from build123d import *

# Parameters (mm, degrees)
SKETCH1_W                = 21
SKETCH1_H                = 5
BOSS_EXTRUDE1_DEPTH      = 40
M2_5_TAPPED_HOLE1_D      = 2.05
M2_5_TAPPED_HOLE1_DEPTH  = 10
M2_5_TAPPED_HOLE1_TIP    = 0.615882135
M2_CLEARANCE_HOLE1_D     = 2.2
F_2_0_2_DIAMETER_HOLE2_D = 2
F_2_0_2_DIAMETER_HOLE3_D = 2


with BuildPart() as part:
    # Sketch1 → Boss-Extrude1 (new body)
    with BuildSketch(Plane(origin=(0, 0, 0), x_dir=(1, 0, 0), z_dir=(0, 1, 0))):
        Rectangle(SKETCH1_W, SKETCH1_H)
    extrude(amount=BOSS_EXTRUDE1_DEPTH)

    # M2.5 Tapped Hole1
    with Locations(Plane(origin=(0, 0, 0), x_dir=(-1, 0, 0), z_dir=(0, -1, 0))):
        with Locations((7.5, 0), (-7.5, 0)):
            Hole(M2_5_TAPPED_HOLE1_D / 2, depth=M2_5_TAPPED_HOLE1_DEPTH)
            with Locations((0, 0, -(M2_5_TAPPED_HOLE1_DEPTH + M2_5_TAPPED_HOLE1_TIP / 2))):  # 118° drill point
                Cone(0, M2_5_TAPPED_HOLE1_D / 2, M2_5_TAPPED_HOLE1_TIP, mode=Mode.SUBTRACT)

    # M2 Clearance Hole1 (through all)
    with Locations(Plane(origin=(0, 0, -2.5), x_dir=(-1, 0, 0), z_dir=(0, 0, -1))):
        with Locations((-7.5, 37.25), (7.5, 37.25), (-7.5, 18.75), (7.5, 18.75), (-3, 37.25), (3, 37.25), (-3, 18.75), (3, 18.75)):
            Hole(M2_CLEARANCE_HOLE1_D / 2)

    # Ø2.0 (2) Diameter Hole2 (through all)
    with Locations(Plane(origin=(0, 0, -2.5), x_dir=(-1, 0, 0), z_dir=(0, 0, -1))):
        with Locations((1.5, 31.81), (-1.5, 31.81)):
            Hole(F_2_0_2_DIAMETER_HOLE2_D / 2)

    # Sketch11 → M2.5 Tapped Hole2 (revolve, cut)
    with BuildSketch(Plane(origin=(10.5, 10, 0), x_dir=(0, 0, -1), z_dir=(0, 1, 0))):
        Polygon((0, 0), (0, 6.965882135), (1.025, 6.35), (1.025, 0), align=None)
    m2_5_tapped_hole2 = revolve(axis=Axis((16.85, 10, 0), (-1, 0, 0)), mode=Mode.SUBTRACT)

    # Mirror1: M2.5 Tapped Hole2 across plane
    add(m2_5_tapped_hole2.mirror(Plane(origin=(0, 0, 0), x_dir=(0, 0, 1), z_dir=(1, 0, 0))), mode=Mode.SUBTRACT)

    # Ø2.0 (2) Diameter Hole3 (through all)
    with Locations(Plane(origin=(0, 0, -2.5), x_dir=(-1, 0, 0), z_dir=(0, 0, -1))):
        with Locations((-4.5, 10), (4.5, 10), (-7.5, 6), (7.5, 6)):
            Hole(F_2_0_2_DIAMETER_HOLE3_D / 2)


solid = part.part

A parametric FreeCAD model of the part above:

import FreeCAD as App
import Part
import Sketcher
Q = App.Units.Quantity

doc = App.newDocument("Part")
body = doc.addObject("PartDesign::Body", "Body")

sketch1 = body.newObject("Sketcher::SketchObject", "Sketch")
sketch1.AttachmentSupport = (doc.getObject("XZ_Plane"), [""])
sketch1.MapMode = "FlatFace"
sketch1.addGeometry([
    Part.LineSegment(App.Vector(-10, -2, 0), App.Vector(-10, 2, 0)),
    Part.LineSegment(App.Vector(-10, 2, 0), App.Vector(10, 2, 0)),
    Part.LineSegment(App.Vector(10, 2, 0), App.Vector(10, -2, 0)),
    Part.LineSegment(App.Vector(10, -2, 0), App.Vector(-10, -2, 0)),
], False)
sketch1.addConstraint([
    Sketcher.Constraint("Coincident", 0, 2, 1, 1),
    Sketcher.Constraint("Coincident", 1, 2, 2, 1),
    Sketcher.Constraint("Coincident", 2, 2, 3, 1),
    Sketcher.Constraint("Coincident", 3, 2, 0, 1),
    Sketcher.Constraint("Vertical", 0),
    Sketcher.Constraint("Horizontal", 1),
    Sketcher.Constraint("Vertical", 2),
    Sketcher.Constraint("Horizontal", 3),
    Sketcher.Constraint("Symmetric", 0, 2, 2, 2, -1, 1),
    Sketcher.Constraint("DistanceX", 1, 1, 1, 2, Q("21 mm")),
    Sketcher.Constraint("DistanceY", 0, 1, 0, 2, Q("5 mm")),
])
pad1 = body.newObject("PartDesign::Pad", "Pad")
pad1.Profile = sketch1
pad1.Length = 40
pad1.Reversed = True

sketch2 = body.newObject("Sketcher::SketchObject", "Sketch001")
sketch2.AttachmentSupport = (doc.getObject("XZ_Plane"), [""])
sketch2.MapMode = "FlatFace"
sketch2.addGeometry([
    Part.Circle(App.Vector(-7.5, 0, 0), App.Vector(0, 0, 1), 1),
    Part.Circle(App.Vector(7.5, 0, 0), App.Vector(0, 0, 1), 1),
], False)
sketch2.addConstraint([
    Sketcher.Constraint("Equal", 0, 1),
    Sketcher.Constraint("Symmetric", 0, 3, 1, 3, -1, 1),
    Sketcher.Constraint("PointOnObject", 0, 3, -1),
    Sketcher.Constraint("Diameter", 0, Q("2.05 mm")),
    Sketcher.Constraint("DistanceX", 0, 3, 1, 3, Q("15 mm")),
])
doc.recompute()
hole = body.newObject("PartDesign::Hole", "Hole")
hole.Profile = sketch2
hole.ThreadType = "None"
hole.Diameter = 2.05
hole.DepthType = "Dimension"
hole.Depth = 10
hole.DrillPoint = "Angled"
hole.DrillPointAngle = 118

sketch3 = body.newObject("Sketcher::SketchObject", "Sketch002")
sketch3.AttachmentSupport = (doc.getObject("XY_Plane"), [""])
sketch3.MapMode = "FlatFace"
sketch3.AttachmentOffset = App.Placement(App.Vector(0, 0, -2.5), App.Rotation())
sketch3.addGeometry([
    Part.Circle(App.Vector(7.5, 37.2, 0), App.Vector(0, 0, 1), 1.1),
    Part.Circle(App.Vector(-7.5, 37.2, 0), App.Vector(0, 0, 1), 1.1),
    Part.Circle(App.Vector(7.5, 18.8, 0), App.Vector(0, 0, 1), 1.1),
    Part.Circle(App.Vector(-7.5, 18.8, 0), App.Vector(0, 0, 1), 1.1),
    Part.Circle(App.Vector(3, 37.2, 0), App.Vector(0, 0, 1), 1.1),
    Part.Circle(App.Vector(-3, 37.2, 0), App.Vector(0, 0, 1), 1.1),
    Part.Circle(App.Vector(3, 18.8, 0), App.Vector(0, 0, 1), 1.1),
    Part.Circle(App.Vector(-3, 18.8, 0), App.Vector(0, 0, 1), 1.1),
], False)
sketch3.addConstraint([
    Sketcher.Constraint("Equal", 0, 1),
    Sketcher.Constraint("Equal", 1, 2),
    Sketcher.Constraint("Equal", 2, 3),
    Sketcher.Constraint("Equal", 3, 4),
    Sketcher.Constraint("Equal", 4, 5),
    Sketcher.Constraint("Equal", 5, 6),
    Sketcher.Constraint("Equal", 6, 7),
    Sketcher.Constraint("Symmetric", 0, 3, 1, 3, -2),
    Sketcher.Constraint("Symmetric", 2, 3, 3, 3, -2),
    Sketcher.Constraint("Symmetric", 4, 3, 5, 3, -2),
    Sketcher.Constraint("Symmetric", 6, 3, 7, 3, -2),
    Sketcher.Constraint("Horizontal", 1, 3, 4, 3),
    Sketcher.Constraint("Horizontal", 3, 3, 6, 3),
    Sketcher.Constraint("Vertical", 0, 3, 2, 3),
    Sketcher.Constraint("Vertical", 4, 3, 6, 3),
    Sketcher.Constraint("Diameter", 0, Q("2.2 mm")),
    Sketcher.Constraint("DistanceX", -1, 1, 4, 3, Q("3 mm")),
    Sketcher.Constraint("DistanceX", 1, 3, 0, 3, Q("15 mm")),
    Sketcher.Constraint("DistanceY", 2, 3, 0, 3, Q("18.5 mm")),
    Sketcher.Constraint("DistanceY", -1, 1, 0, 3, Q("37.25 mm")),
])
doc.recompute()
hole2 = body.newObject("PartDesign::Hole", "Hole001")
hole2.Profile = sketch3
hole2.ThreadType = "None"
hole2.Diameter = 2.2
hole2.DepthType = "ThroughAll"
hole2.Reversed = True

sketch4 = body.newObject("Sketcher::SketchObject", "Sketch003")
sketch4.AttachmentSupport = (doc.getObject("XY_Plane"), [""])
sketch4.MapMode = "FlatFace"
sketch4.AttachmentOffset = App.Placement(App.Vector(0, 0, -2.5), App.Rotation())
sketch4.addGeometry([
    Part.Circle(App.Vector(-1.5, 31.8, 0), App.Vector(0, 0, 1), 1),
    Part.Circle(App.Vector(1.5, 31.8, 0), App.Vector(0, 0, 1), 1),
], False)
sketch4.addConstraint([
    Sketcher.Constraint("Equal", 0, 1),
    Sketcher.Constraint("Symmetric", 0, 3, 1, 3, -2),
    Sketcher.Constraint("Diameter", 0, Q("2 mm")),
    Sketcher.Constraint("DistanceX", 0, 3, 1, 3, Q("3 mm")),
    Sketcher.Constraint("DistanceY", -1, 1, 0, 3, Q("31.81 mm")),
])
doc.recompute()
hole3 = body.newObject("PartDesign::Hole", "Hole002")
hole3.Profile = sketch4
hole3.ThreadType = "None"
hole3.Diameter = 2
hole3.DepthType = "ThroughAll"
hole3.Reversed = True

sketch5 = body.newObject("Sketcher::SketchObject", "Sketch004")
sketch5.AttachmentSupport = (doc.getObject("XZ_Plane"), [""])
sketch5.MapMode = "FlatFace"
sketch5.AttachmentOffset = App.Placement(App.Vector(0, 0, -10), App.Rotation())
sketch5.addGeometry([
    Part.LineSegment(App.Vector(3.5, 0, 0), App.Vector(10.5, 0, 0)),
    Part.LineSegment(App.Vector(10.5, 0, 0), App.Vector(10.5, -1, 0)),
    Part.LineSegment(App.Vector(10.5, -1, 0), App.Vector(4.2, -1, 0)),
    Part.LineSegment(App.Vector(4.2, -1, 0), App.Vector(3.5, 0, 0)),
], False)
sketch5.addConstraint([
    Sketcher.Constraint("Coincident", 0, 2, 1, 1),
    Sketcher.Constraint("Coincident", 1, 2, 2, 1),
    Sketcher.Constraint("Coincident", 2, 2, 3, 1),
    Sketcher.Constraint("Coincident", 3, 2, 0, 1),
    Sketcher.Constraint("Horizontal", 0),
    Sketcher.Constraint("Vertical", 1),
    Sketcher.Constraint("Horizontal", 2),
    Sketcher.Constraint("PointOnObject", 0, 2, -1),
    Sketcher.Constraint("Angle", 3, Q("121 deg")),
    Sketcher.Constraint("DistanceX", 2, 2, 2, 1, Q("6.35 mm")),
    Sketcher.Constraint("DistanceX", -1, 1, 0, 2, Q("10.5 mm")),
    Sketcher.Constraint("DistanceY", 1, 2, 1, 1, Q("1.025 mm")),
])
groove = body.newObject("PartDesign::Groove", "Groove")
groove.Profile = sketch5
groove.ReferenceAxis = (sketch5, ["H_Axis"])
groove.Angle = 360
doc.recompute()

mirrored = body.newObject("PartDesign::Mirrored", "Mirrored")
mirrored.Originals = [groove]
mirrored.MirrorPlane = (doc.getObject("YZ_Plane"), [""])
body.Tip = mirrored

sketch6 = body.newObject("Sketcher::SketchObject", "Sketch005")
sketch6.AttachmentSupport = (doc.getObject("XY_Plane"), [""])
sketch6.MapMode = "FlatFace"
sketch6.AttachmentOffset = App.Placement(App.Vector(0, 0, -2.5), App.Rotation())
sketch6.addGeometry([
    Part.Circle(App.Vector(4.5, 10, 0), App.Vector(0, 0, 1), 1),
    Part.Circle(App.Vector(-4.5, 10, 0), App.Vector(0, 0, 1), 1),
    Part.Circle(App.Vector(7.5, 6, 0), App.Vector(0, 0, 1), 1),
    Part.Circle(App.Vector(-7.5, 6, 0), App.Vector(0, 0, 1), 1),
], False)
sketch6.addConstraint([
    Sketcher.Constraint("Equal", 0, 1),
    Sketcher.Constraint("Equal", 1, 2),
    Sketcher.Constraint("Equal", 2, 3),
    Sketcher.Constraint("Symmetric", 0, 3, 1, 3, -2),
    Sketcher.Constraint("Symmetric", 2, 3, 3, 3, -2),
    Sketcher.Constraint("Diameter", 0, Q("2 mm")),
    Sketcher.Constraint("DistanceY", -1, 1, 0, 3, Q("10 mm")),
    Sketcher.Constraint("DistanceY", -1, 1, 2, 3, Q("6 mm")),
    Sketcher.Constraint("DistanceX", 1, 3, 0, 3, Q("9 mm")),
    Sketcher.Constraint("DistanceX", 0, 3, 2, 3, Q("3 mm")),
])
doc.recompute()
hole4 = body.newObject("PartDesign::Hole", "Hole003")
hole4.Profile = sketch6
hole4.ThreadType = "None"
hole4.Diameter = 2
hole4.DepthType = "ThroughAll"
hole4.Reversed = True

doc.recompute()
